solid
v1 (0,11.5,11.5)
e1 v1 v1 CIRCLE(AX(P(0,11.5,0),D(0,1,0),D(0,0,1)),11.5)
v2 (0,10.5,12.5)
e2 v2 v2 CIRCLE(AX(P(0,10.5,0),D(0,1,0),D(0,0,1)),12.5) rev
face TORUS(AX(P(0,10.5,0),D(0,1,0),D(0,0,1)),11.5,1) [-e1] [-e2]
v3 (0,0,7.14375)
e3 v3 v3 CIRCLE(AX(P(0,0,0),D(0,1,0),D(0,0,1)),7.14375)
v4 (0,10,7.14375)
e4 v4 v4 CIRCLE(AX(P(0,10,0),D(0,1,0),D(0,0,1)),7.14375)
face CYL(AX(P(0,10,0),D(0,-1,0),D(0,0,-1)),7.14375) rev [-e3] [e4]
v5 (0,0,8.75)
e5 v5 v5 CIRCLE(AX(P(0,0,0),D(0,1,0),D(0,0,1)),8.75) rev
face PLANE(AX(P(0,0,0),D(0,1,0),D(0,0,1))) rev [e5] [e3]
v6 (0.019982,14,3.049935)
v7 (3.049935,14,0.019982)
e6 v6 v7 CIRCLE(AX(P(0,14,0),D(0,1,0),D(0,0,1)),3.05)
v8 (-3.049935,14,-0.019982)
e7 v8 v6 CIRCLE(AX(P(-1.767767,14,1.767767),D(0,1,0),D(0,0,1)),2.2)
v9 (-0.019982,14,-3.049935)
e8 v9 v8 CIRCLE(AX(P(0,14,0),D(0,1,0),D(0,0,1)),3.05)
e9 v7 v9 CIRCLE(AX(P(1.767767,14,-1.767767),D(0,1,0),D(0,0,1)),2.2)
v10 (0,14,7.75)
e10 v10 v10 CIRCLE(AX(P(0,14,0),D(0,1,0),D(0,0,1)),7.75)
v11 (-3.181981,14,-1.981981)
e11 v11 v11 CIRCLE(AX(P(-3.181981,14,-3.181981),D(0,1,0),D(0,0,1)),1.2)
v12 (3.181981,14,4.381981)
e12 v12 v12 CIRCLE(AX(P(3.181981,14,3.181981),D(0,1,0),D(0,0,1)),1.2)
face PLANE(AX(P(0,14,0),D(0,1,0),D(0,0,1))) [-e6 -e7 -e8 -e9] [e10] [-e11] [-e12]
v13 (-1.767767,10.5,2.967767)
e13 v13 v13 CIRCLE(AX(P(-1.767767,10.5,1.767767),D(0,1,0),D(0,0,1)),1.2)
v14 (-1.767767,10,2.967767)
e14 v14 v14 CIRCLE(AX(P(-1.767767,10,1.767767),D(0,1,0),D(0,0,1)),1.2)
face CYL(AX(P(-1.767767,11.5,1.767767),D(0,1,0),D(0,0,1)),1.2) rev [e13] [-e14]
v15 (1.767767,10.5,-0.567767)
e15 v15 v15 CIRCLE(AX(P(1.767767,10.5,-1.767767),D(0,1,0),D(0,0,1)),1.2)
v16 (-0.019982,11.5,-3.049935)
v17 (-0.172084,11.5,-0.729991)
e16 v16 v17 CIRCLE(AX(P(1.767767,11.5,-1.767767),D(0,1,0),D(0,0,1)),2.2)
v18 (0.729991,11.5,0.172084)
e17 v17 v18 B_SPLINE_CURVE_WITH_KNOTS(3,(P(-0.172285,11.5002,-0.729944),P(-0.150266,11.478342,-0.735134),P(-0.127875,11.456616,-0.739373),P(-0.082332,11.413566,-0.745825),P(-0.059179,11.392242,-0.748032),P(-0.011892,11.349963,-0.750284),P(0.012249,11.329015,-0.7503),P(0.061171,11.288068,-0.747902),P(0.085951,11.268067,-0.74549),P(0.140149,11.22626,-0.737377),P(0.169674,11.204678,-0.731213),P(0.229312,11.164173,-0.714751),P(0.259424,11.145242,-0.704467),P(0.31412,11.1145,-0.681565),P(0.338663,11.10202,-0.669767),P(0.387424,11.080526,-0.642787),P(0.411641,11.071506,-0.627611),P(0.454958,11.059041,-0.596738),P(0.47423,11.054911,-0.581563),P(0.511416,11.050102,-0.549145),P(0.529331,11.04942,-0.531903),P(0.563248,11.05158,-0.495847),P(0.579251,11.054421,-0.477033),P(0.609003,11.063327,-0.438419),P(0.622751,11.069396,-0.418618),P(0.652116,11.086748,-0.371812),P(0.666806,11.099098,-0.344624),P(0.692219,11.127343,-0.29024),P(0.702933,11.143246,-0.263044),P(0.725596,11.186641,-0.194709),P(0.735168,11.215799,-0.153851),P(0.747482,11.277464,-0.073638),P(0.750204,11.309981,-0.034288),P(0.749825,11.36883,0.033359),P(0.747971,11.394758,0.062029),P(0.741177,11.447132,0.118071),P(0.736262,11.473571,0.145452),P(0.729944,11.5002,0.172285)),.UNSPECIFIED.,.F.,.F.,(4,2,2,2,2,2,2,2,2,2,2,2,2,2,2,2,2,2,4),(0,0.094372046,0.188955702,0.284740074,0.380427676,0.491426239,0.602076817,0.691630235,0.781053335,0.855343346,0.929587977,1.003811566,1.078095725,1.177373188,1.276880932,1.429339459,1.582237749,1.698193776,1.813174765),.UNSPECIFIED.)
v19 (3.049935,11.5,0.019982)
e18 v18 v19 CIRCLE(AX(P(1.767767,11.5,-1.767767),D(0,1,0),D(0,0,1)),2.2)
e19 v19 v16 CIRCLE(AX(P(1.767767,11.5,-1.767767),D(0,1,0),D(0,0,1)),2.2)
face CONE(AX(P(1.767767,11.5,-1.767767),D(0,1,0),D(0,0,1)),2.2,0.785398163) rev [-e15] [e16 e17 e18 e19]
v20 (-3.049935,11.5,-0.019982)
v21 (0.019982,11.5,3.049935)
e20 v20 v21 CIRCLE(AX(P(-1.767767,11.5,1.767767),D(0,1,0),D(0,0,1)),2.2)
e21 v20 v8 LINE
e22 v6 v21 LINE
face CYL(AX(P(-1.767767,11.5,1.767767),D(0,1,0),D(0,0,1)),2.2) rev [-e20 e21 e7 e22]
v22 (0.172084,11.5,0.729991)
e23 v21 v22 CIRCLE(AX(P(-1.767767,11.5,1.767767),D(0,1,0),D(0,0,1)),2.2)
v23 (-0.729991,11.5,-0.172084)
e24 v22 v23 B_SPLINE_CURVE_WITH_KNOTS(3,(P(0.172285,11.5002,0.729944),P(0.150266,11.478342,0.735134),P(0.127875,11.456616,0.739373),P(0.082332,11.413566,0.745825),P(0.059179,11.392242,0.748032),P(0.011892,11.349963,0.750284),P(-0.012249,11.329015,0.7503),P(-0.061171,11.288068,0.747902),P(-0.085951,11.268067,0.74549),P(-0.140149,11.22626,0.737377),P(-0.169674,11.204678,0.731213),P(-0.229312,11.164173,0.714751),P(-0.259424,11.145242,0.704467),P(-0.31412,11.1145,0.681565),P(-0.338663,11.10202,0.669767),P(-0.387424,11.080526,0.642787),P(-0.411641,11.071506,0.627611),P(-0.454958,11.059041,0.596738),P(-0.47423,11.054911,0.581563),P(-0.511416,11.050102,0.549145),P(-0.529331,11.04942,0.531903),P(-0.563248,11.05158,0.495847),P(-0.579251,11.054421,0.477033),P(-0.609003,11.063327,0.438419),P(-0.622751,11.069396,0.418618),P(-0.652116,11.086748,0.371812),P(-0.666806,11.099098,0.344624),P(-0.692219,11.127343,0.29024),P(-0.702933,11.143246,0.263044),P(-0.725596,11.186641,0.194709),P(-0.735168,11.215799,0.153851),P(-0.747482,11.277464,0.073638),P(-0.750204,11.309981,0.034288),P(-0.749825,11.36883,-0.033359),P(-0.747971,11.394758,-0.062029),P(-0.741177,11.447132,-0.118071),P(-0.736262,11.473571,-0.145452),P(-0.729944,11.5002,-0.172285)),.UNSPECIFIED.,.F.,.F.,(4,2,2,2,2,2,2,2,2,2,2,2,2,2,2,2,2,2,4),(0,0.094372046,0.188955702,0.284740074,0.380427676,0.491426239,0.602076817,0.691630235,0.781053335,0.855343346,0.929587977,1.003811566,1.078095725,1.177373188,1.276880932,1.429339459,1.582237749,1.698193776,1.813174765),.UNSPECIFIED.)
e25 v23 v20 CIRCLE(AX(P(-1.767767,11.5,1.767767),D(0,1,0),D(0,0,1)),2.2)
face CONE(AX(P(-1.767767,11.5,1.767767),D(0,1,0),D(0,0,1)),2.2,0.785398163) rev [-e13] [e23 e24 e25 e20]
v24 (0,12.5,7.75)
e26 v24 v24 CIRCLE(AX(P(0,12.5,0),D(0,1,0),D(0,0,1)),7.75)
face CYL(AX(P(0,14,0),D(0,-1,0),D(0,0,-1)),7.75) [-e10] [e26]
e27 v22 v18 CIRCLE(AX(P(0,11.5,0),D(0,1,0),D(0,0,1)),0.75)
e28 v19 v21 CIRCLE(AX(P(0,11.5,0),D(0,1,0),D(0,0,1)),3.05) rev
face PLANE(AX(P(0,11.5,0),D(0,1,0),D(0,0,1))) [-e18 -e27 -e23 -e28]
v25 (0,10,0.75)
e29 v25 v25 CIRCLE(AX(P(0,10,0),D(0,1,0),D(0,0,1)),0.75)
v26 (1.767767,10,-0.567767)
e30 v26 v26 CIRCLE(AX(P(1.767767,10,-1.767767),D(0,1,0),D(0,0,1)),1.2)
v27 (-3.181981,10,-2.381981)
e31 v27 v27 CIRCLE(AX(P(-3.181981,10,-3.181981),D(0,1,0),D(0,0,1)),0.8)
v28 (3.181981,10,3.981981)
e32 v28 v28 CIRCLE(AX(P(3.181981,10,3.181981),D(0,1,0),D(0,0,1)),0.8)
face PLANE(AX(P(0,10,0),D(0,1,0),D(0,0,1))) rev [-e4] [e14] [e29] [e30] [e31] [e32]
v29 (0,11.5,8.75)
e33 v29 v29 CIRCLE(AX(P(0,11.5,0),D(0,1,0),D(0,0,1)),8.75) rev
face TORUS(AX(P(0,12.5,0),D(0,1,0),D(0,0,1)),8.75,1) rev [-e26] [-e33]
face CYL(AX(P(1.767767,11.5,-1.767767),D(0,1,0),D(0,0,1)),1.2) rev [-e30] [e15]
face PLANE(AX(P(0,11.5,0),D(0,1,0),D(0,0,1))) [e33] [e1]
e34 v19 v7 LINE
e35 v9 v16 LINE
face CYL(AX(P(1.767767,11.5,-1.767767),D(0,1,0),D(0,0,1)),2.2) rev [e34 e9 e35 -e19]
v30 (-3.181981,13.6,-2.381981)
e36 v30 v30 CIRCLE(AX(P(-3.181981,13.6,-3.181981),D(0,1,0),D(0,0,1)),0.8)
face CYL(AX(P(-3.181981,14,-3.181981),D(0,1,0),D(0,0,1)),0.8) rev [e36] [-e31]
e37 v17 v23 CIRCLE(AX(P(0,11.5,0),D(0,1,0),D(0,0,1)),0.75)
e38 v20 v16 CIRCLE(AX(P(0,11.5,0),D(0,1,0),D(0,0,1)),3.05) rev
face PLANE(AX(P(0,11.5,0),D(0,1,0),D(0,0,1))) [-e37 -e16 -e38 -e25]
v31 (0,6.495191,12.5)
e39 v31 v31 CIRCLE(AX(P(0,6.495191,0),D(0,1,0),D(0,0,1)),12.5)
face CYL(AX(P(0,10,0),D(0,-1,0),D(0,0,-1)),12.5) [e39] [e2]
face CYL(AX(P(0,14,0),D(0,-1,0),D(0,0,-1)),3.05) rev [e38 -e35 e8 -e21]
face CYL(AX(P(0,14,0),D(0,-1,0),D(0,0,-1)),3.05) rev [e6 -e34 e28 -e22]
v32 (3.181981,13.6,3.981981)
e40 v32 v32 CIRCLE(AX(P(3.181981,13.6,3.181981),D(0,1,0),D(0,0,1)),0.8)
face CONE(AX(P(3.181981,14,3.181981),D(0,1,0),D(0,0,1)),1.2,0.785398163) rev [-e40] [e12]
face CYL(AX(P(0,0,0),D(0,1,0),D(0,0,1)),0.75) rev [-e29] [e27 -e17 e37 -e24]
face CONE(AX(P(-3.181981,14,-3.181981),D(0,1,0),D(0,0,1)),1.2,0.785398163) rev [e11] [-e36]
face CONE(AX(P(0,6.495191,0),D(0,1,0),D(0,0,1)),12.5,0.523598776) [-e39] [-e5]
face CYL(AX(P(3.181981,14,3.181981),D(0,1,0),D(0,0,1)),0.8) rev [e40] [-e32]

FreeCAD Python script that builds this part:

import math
import FreeCAD as App
import Part
import Sketcher

V = App.Vector
Q = App.Units.Quantity


def edges_at(feature, points):
    """Names of the edges that pass closest to the given points."""
    edges = feature.Shape.Edges
    near = lambda p: min(range(len(edges)), key=lambda i: edges[i].distToShape(Part.Vertex(*p))[0])
    return sorted({f"Edge{near(p) + 1}" for p in points})

doc = App.newDocument("Part")
body = doc.addObject("PartDesign::Body", "Body")

# Sketch on XZ plane
sketch1 = body.newObject("Sketcher::SketchObject", "Sketch")
sketch1.AttachmentSupport = (doc.getObject("XZ_Plane"), [""])
sketch1.MapMode = "FlatFace"
sketch1.addGeometry([
    Part.Circle(V(0, 0, 0), V(0, 0, 1), 12),
    Part.Circle(V(0, 0, 0), V(0, 0, 1), 7),
], False)
sketch1.addConstraint([
    Sketcher.Constraint("Coincident", 0, 3, -1, 1),
    Sketcher.Constraint("Coincident", 1, 3, -1, 1),
    Sketcher.Constraint("Diameter", 0, Q("25 mm")),
    Sketcher.Constraint("Diameter", 1, Q("14.2875 mm")),
])
pad1 = body.newObject("PartDesign::Pad", "Pad")
pad1.Profile = sketch1
pad1.Length = 10
pad1.Reversed = True

# Sketch on XZ plane
sketch2 = body.newObject("Sketcher::SketchObject", "Sketch001")
sketch2.AttachmentSupport = (doc.getObject("XZ_Plane"), [""])
sketch2.MapMode = "FlatFace"
sketch2.AttachmentOffset = App.Placement(V(0, 0, -10), App.Rotation())
sketch2.addGeometry(Part.Circle(V(0, 0, 0), V(0, 0, 1), 12), False)
sketch2.addConstraint([
    Sketcher.Constraint("Coincident", 0, 3, -1, 1),
    Sketcher.Constraint("Diameter", 0, Q("25 mm")),
])
pad2 = body.newObject("PartDesign::Pad", "Pad001")
pad2.Profile = sketch2
pad2.Length = 1.5
pad2.Reversed = True
doc.recompute()

chamfer = body.newObject("PartDesign::Chamfer", "Chamfer")
chamfer.Base = (pad2, edges_at(pad2, [(0, 0, -12.5)]))
chamfer.ChamferType = "Two distances"
chamfer.Size = 3.75
chamfer.Size2 = 6.495191

# Sketch on XZ plane
sketch3 = body.newObject("Sketcher::SketchObject", "Sketch002")
sketch3.AttachmentSupport = (doc.getObject("XZ_Plane"), [""])
sketch3.MapMode = "FlatFace"
sketch3.AttachmentOffset = App.Placement(V(0, 0, -11.5), App.Rotation())
sketch3.addGeometry([
    Part.Circle(V(0, 0, 0), V(0, 0, 1), 7.8),
    Part.Circle(V(0, 0, 0), V(0, 0, 1), 3),
], False)
sketch3.addConstraint([
    Sketcher.Constraint("Coincident", 0, 3, -1, 1),
    Sketcher.Constraint("Coincident", 1, 3, -1, 1),
    Sketcher.Constraint("Diameter", 0, Q("15.5 mm")),
    Sketcher.Constraint("Diameter", 1, Q("6.1 mm")),
])
pad3 = body.newObject("PartDesign::Pad", "Pad002")
pad3.Profile = sketch3
pad3.Length = 2.5
pad3.Reversed = True

# Sketch on YZ plane
sketch4 = body.newObject("Sketcher::SketchObject", "Sketch003")
sketch4.AttachmentSupport = (doc.getObject("YZ_Plane"), [""])
sketch4.MapMode = "FlatFace"
sketch4.AttachmentOffset = App.Placement(V(0, 0, -1.767767), App.Rotation())
sketch4.addGeometry([
    Part.LineSegment(V(0, 1.8, 0), V(11.5, 1.8, 0)),  # 0
    Part.LineSegment(V(11.5, 1.8, 0), V(11.5, 4, 0)),  # 1
    Part.LineSegment(V(11.5, 4, 0), V(10.5, 3, 0)),  # 2
    Part.LineSegment(V(10.5, 3, 0), V(0, 3, 0)),  # 3
    Part.LineSegment(V(0, 3, 0), V(0, 1.8, 0)),  # 4
], False)
sketch4.addGeometry(Part.LineSegment(V(11.5, 1.8, 0), V(0, 1.8, 0)), True)  # axis
sketch4.addConstraint([
    Sketcher.Constraint("Coincident", 0, 2, 1, 1),
    Sketcher.Constraint("Coincident", 1, 2, 2, 1),
    Sketcher.Constraint("Coincident", 2, 2, 3, 1),
    Sketcher.Constraint("Coincident", 3, 2, 4, 1),
    Sketcher.Constraint("Coincident", 4, 2, 0, 1),
    Sketcher.Constraint("Horizontal", 0),
    Sketcher.Constraint("Vertical", 1),
    Sketcher.Constraint("Horizontal", 3),
    Sketcher.Constraint("Vertical", 4),
    Sketcher.Constraint("Horizontal", 5),
    Sketcher.Constraint("Coincident", 5, 1, 0, 2),
    Sketcher.Constraint("PointOnObject", 3, 2, -2),
    Sketcher.Constraint("PointOnObject", 5, 2, -2),
    Sketcher.Constraint("Angle", 2, Q("-135 deg")),
    Sketcher.Constraint("DistanceX", 0, 1, 0, 2, Q("11.5 mm")),
    Sketcher.Constraint("DistanceX", 3, 2, 3, 1, Q("10.5 mm")),
    Sketcher.Constraint("DistanceY", 1, 1, 1, 2, Q("2.2 mm")),
    Sketcher.Constraint("DistanceY", -1, 1, 0, 2, Q("1.767767 mm")),
])
groove = body.newObject("PartDesign::Groove", "Groove")
groove.Profile = sketch4
groove.ReferenceAxis = (sketch4, ["Axis0"])
groove.Angle = 360
doc.recompute()

datumline = body.newObject("PartDesign::Line", "DatumLine")
datumline.Placement = App.Placement(V(0, 0, 0), App.Rotation(V(0, 0, 1), V(0.707106781, 0, -0.707106781)))
linearpattern = body.newObject("PartDesign::LinearPattern", "LinearPattern")
linearpattern.Originals = [groove]
linearpattern.Direction = (datumline, [""])
linearpattern.Mode = "offset"
linearpattern.Offset = 5
linearpattern.Occurrences = 2
body.Tip = linearpattern

# Sketch on XZ plane
sketch5 = body.newObject("Sketcher::SketchObject", "Sketch004")
sketch5.AttachmentSupport = (doc.getObject("XZ_Plane"), [""])
sketch5.MapMode = "FlatFace"
sketch5.AttachmentOffset = App.Placement(V(0, 0, -11.5), App.Rotation())
sketch5.addGeometry(Part.Circle(V(0, 0, 0), V(0, 0, 1), 0.8), False)
sketch5.addConstraint([
    Sketcher.Constraint("Coincident", 0, 3, -1, 1),
    Sketcher.Constraint("Diameter", 0, Q("1.5 mm")),
])
pocket1 = body.newObject("PartDesign::Pocket", "Pocket")
pocket1.Profile = sketch5
pocket1.Type = "ThroughAll"
pocket1.Reversed = True

# Sketch on XZ plane
sketch6 = body.newObject("Sketcher::SketchObject", "Sketch005")
sketch6.AttachmentSupport = (doc.getObject("XZ_Plane"), [""])
sketch6.MapMode = "FlatFace"
sketch6.AttachmentOffset = App.Placement(V(0, 0, -14), App.Rotation())
sketch6.addGeometry([
    Part.Circle(V(3.2, 3.2, 0), V(0, 0, 1), 0.8),
    Part.Circle(V(-3.2, -3.2, 0), V(0, 0, 1), 0.8),
], False)
sketch6.addConstraint([
    Sketcher.Constraint("Equal", 0, 1),
    Sketcher.Constraint("Symmetric", 0, 3, 1, 3, -1, 1),
    Sketcher.Constraint("Diameter", 0, Q("1.6 mm")),
    Sketcher.Constraint("DistanceX", -1, 1, 0, 3, Q("3.181981 mm")),
    Sketcher.Constraint("DistanceY", -1, 1, 0, 3, Q("3.181981 mm")),
])
doc.recompute()
hole = body.newObject("PartDesign::Hole", "Hole")
hole.Profile = sketch6
hole.ThreadType = "None"
hole.Diameter = 1.6
hole.DepthType = "ThroughAll"
hole.HoleCutType = "Countersink"
hole.HoleCutDiameter = 2.4
hole.HoleCutCountersinkAngle = 90
hole.Reversed = True

# Sketch on XZ plane
sketch7 = body.newObject("Sketcher::SketchObject", "Sketch006")
sketch7.AttachmentSupport = (doc.getObject("XZ_Plane"), [""])
sketch7.MapMode = "FlatFace"
sketch7.AttachmentOffset = App.Placement(V(0, 0, -14), App.Rotation())
sketch7.addGeometry([
    Part.ArcOfCircle(Part.Circle(V(-1.8, 1.8, 0), V(0, 0, 1), 2.2), math.radians(-28), math.radians(36)),  # 0
    Part.ArcOfCircle(Part.Circle(V(0, 0, 0), V(0, 0, 1), 0.8), math.radians(77), math.radians(193)),  # 1
    Part.ArcOfCircle(Part.Circle(V(-1.8, 1.8, 0), V(0, 0, 1), 2.2), math.radians(-126), math.radians(-62)),  # 2
    Part.ArcOfCircle(Part.Circle(V(-1.8, 1.8, 0), V(0, 0, 1), 2.2), math.radians(36), math.radians(234)),  # 3
    Part.ArcOfCircle(Part.Circle(V(1.8, -1.8, 0), V(0, 0, 1), 2.2), math.radians(152), math.radians(216)),  # 4
    Part.ArcOfCircle(Part.Circle(V(0, 0, 0), V(0, 0, 1), 0.8), math.radians(-103), math.radians(13)),  # 5
    Part.ArcOfCircle(Part.Circle(V(1.8, -1.8, 0), V(0, 0, 1), 2.2), math.radians(54), math.radians(118)),  # 6
    Part.ArcOfCircle(Part.Circle(V(1.8, -1.8, 0), V(0, 0, 1), 2.2), math.radians(-144), math.radians(54)),  # 7
], False)
sketch7.addConstraint([
    Sketcher.Constraint("Coincident", 0, 1, 1, 1),
    Sketcher.Constraint("Coincident", 1, 2, 2, 2),
    Sketcher.Constraint("Tangent", 2, 1, 3, 2),
    Sketcher.Constraint("Tangent", 3, 1, 0, 2),
    Sketcher.Constraint("Coincident", 4, 1, 5, 1),
    Sketcher.Constraint("Coincident", 5, 2, 6, 2),
    Sketcher.Constraint("Tangent", 6, 1, 7, 2),
    Sketcher.Constraint("Tangent", 7, 1, 4, 2),
    Sketcher.Constraint("Coincident", 1, 3, -1, 1),
    Sketcher.Constraint("Coincident", 5, 3, -1, 1),
    Sketcher.Constraint("Coincident", 2, 3, 0, 3),
    Sketcher.Constraint("Coincident", 6, 3, 4, 3),
    Sketcher.Constraint("Equal", 3, 4),
    Sketcher.Constraint("Equal", 1, 5),
    Sketcher.Constraint("Symmetric", 0, 3, 4, 3, -1, 1),
    Sketcher.Constraint("Radius", 0, Q("2.2 mm")),
    Sketcher.Constraint("Radius", 1, Q("0.75 mm")),
    Sketcher.Constraint("DistanceY", 1, 2, 2, 1, Q("0.152102 mm")),
    Sketcher.Constraint("DistanceX", 3, 1, 0, 1, Q("0.152102 mm")),
    Sketcher.Constraint("DistanceY", 6, 1, 5, 2, Q("0.152102 mm")),
    Sketcher.Constraint("DistanceX", 4, 1, 7, 1, Q("0.152102 mm")),
    Sketcher.Constraint("DistanceY", -1, 1, 0, 1, Q("0.729991 mm")),
    Sketcher.Constraint("DistanceX", 1, 2, -1, 1, Q("0.729991 mm")),
])
pocket2 = body.newObject("PartDesign::Pocket", "Pocket001")
pocket2.Profile = sketch7
pocket2.Length = 2.5
pocket2.Reversed = True
doc.recompute()

fillet = body.newObject("PartDesign::Fillet", "Fillet")
fillet.Base = (pocket2, edges_at(pocket2, [(0, 11.5, -12.5), (0, 11.5, -7.75)]))
fillet.Radius = 1

doc.recompute()
